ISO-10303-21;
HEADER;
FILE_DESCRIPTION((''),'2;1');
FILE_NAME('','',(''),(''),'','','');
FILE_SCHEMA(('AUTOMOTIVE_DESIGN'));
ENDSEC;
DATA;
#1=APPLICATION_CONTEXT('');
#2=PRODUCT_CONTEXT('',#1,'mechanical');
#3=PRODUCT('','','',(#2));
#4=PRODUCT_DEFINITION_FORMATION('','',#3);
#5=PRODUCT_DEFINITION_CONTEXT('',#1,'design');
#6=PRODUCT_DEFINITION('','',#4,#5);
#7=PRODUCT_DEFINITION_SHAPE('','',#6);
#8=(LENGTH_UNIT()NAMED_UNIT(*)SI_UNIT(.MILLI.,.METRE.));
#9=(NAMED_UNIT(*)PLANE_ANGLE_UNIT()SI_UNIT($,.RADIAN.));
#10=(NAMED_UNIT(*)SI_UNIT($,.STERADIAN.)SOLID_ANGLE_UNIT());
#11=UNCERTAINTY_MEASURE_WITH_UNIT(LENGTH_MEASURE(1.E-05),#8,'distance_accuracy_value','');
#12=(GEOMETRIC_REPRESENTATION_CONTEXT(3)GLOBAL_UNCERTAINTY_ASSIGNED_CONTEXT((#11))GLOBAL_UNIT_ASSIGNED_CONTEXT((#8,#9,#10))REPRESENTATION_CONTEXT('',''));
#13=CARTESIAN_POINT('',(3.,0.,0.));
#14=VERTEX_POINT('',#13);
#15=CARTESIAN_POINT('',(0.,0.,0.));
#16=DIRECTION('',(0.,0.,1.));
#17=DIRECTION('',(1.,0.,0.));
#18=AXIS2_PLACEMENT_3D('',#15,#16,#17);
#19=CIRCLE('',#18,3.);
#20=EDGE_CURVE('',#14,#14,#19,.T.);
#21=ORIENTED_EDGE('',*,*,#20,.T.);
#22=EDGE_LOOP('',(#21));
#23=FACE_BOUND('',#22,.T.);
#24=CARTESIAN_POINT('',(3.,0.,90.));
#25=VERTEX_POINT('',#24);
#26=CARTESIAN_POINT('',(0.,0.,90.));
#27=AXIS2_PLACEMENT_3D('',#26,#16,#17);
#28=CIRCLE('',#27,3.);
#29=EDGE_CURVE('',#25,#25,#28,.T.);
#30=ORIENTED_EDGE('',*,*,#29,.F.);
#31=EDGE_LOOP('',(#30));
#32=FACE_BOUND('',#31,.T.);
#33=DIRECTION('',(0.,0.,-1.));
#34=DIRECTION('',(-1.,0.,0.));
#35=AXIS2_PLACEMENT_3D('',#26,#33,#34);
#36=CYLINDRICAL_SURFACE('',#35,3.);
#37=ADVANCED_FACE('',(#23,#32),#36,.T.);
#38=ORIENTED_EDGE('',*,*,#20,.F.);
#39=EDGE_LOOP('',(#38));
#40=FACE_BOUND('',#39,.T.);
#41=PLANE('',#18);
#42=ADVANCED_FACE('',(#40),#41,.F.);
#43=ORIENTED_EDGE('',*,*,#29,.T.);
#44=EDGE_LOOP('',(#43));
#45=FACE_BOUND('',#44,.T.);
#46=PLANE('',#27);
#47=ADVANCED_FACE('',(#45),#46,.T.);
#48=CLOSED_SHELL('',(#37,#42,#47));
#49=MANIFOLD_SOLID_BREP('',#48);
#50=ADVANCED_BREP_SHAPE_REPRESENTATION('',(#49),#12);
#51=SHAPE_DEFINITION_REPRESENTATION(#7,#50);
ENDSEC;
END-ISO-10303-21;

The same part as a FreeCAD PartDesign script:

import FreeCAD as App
import Part
import Sketcher

V = App.Vector

doc = App.newDocument("Part")
body = doc.addObject("PartDesign::Body", "Body")

sketch1 = body.newObject("Sketcher::SketchObject", "Sketch")
sketch1.AttachmentSupport = (doc.getObject("XY_Plane"), [""])
sketch1.MapMode = "FlatFace"
sketch1.addGeometry(Part.Circle(V(0, 0, 0), V(0, 0, 1), 3), False)
sketch1.addConstraint([
    Sketcher.Constraint("Coincident", 0, 3, -1, 1),
    Sketcher.Constraint("Diameter", 0, 6.0),
])
pad1 = body.newObject("PartDesign::Pad", "Pad")
pad1.Profile = sketch1
pad1.Length = 90

doc.recompute()
